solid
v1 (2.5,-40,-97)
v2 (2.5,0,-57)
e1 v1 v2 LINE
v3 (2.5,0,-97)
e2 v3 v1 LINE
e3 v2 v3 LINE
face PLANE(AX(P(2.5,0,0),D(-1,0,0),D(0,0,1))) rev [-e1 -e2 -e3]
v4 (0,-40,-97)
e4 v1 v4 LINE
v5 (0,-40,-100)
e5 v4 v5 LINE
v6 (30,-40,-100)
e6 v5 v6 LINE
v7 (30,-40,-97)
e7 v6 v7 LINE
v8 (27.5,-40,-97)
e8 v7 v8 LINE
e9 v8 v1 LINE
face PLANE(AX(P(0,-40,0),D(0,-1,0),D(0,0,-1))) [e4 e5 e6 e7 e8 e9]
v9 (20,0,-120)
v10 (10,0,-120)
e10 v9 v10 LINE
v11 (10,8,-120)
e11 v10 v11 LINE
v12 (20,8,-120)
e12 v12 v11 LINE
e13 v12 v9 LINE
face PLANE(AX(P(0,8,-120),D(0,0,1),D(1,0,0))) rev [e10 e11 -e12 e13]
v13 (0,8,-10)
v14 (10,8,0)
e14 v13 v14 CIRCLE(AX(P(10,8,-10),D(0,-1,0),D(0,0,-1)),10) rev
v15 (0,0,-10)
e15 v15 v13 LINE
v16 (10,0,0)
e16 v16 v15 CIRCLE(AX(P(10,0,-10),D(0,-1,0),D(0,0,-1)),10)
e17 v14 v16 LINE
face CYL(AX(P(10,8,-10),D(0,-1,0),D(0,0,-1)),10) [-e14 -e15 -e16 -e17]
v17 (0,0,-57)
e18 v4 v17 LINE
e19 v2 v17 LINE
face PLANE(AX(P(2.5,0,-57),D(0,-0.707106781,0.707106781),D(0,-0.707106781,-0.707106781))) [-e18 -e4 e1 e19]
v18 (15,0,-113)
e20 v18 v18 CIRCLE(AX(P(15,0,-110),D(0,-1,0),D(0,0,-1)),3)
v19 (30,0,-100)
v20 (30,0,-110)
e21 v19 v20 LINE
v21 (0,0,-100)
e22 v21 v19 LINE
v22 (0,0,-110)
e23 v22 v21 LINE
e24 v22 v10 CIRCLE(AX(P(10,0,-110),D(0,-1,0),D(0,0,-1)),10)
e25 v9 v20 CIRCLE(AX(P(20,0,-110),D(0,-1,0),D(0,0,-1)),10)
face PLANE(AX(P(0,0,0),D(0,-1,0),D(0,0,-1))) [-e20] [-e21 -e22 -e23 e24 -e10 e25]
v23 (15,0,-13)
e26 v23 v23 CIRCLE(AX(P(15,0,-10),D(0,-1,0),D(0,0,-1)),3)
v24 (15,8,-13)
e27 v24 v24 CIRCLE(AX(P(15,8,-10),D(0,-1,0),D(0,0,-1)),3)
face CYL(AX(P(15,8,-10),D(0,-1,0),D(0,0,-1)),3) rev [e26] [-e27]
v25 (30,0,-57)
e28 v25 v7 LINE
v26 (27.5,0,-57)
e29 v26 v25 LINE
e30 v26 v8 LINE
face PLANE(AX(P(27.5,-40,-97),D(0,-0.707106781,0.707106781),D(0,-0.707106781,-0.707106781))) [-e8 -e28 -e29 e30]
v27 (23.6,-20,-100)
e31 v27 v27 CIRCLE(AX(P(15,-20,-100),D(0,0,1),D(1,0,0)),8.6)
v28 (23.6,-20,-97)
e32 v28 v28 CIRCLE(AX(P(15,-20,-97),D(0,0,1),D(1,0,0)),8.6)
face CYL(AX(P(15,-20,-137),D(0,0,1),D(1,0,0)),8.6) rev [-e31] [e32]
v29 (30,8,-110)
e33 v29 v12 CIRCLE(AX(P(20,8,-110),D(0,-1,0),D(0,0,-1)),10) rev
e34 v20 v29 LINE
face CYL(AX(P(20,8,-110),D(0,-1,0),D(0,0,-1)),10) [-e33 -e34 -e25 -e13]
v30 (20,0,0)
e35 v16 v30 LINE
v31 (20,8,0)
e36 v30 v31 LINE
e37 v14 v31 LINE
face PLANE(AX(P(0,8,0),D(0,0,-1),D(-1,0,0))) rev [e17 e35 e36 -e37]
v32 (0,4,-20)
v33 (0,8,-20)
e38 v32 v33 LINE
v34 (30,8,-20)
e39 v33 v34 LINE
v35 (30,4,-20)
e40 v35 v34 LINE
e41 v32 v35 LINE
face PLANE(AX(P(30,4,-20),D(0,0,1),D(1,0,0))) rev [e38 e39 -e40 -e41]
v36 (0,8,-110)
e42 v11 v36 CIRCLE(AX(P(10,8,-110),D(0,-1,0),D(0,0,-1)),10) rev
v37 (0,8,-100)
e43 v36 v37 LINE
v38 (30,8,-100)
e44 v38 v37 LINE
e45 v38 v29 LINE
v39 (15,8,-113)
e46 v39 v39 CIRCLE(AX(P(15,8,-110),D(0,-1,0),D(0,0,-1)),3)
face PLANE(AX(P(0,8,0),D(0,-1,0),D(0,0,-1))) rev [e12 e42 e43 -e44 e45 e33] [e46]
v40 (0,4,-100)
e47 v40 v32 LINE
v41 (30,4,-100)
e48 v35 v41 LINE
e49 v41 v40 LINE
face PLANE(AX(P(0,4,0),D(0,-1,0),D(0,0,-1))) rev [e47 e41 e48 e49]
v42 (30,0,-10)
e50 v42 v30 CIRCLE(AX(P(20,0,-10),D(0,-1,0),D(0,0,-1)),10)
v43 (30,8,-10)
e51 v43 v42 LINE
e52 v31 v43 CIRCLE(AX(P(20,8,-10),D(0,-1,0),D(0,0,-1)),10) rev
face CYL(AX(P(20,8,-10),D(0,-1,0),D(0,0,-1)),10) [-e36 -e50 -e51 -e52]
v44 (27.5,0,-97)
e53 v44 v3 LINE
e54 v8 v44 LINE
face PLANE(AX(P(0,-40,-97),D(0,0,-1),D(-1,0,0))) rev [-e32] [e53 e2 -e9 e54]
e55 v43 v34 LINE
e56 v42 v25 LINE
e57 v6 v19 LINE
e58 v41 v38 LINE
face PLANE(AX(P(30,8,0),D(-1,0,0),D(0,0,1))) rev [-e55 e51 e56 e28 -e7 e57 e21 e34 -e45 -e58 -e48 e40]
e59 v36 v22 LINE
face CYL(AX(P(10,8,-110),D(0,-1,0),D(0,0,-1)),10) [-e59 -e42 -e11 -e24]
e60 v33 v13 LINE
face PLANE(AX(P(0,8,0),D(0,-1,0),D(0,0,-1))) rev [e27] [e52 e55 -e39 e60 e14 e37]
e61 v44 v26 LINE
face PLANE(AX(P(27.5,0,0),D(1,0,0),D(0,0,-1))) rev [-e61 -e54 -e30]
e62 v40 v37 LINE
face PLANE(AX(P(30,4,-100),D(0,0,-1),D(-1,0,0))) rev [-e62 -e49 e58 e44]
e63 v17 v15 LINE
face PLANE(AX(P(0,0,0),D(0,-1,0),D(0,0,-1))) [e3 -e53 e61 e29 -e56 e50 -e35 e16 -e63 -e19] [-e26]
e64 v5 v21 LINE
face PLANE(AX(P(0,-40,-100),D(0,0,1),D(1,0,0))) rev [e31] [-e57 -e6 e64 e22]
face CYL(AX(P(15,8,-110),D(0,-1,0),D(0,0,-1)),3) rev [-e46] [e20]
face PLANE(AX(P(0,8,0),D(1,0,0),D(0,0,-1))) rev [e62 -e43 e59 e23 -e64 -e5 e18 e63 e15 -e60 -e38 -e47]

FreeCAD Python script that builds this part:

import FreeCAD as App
import Part
import Sketcher

V = App.Vector
Q = App.Units.Quantity


def edges_at(feature, points):
    """Names of the edges that pass closest to the given points."""
    edges = feature.Shape.Edges
    near = lambda p: min(range(len(edges)), key=lambda i: edges[i].distToShape(Part.Vertex(*p))[0])
    return sorted({f"Edge{near(p) + 1}" for p in points})


def add_polygon(sketch, points):
    """Adds a closed chain of lines whose ends are joined by coincident constraints."""
    first, n = sketch.GeometryCount, len(points)
    for a, b in zip(points, points[1:] + points[:1]):
        sketch.addGeometry(Part.LineSegment(App.Vector(*a, 0), App.Vector(*b, 0)), False)
    for i in range(n):
        sketch.addConstraint(Sketcher.Constraint("Coincident", first + i, 2, first + (i + 1) % n, 1))

doc = App.newDocument("Part")
body = doc.addObject("PartDesign::Body", "Body")

sketch1 = doc.addObject("Sketcher::SketchObject", "Sketch")
body.addObject(sketch1)
sketch1.AttachmentSupport = (doc.XZ_Plane, [""])
sketch1.MapMode = "FlatFace"
add_polygon(sketch1, [(0, -120), (0, 0), (30, 0), (30, -120)])
sketch1.addConstraint([
    Sketcher.Constraint("Vertical", 0),
    Sketcher.Constraint("Horizontal", 1),
    Sketcher.Constraint("Vertical", 2),
    Sketcher.Constraint("Horizontal", 3),
    Sketcher.Constraint("Coincident", 0, 2, -1, 1),
    Sketcher.Constraint("DistanceX", 1, 1, 1, 2, Q("30 mm")),
    Sketcher.Constraint("DistanceY", 0, 1, 0, 2, Q("120 mm")),
])
pad1 = doc.addObject("PartDesign::Pad", "Pad")
body.addObject(pad1)
pad1.Profile = sketch1
pad1.Length = 8
pad1.Reversed = True

sketch2 = doc.addObject("Sketcher::SketchObject", "Sketch001")
body.addObject(sketch2)
sketch2.AttachmentSupport = (doc.XZ_Plane, [""])
sketch2.MapMode = "FlatFace"
sketch2.AttachmentOffset = App.Placement(V(0, 0, -8), App.Rotation())
add_polygon(sketch2, [(0, -100), (0, -20), (30, -20), (30, -100)])
sketch2.addConstraint([
    Sketcher.Constraint("Vertical", 0),
    Sketcher.Constraint("Horizontal", 1),
    Sketcher.Constraint("Vertical", 2),
    Sketcher.Constraint("Horizontal", 3),
    Sketcher.Constraint("PointOnObject", 0, 2, -2),
    Sketcher.Constraint("DistanceX", 1, 1, 1, 2, Q("30 mm")),
    Sketcher.Constraint("DistanceY", 0, 1, 0, 2, Q("80 mm")),
    Sketcher.Constraint("DistanceY", 0, 2, -1, 1, Q("20 mm")),
])
pocket1 = doc.addObject("PartDesign::Pocket", "Pocket")
body.addObject(pocket1)
pocket1.Profile = sketch2
pocket1.Length = 4
pocket1.Reversed = True

sketch3 = doc.addObject("Sketcher::SketchObject", "Sketch002")
body.addObject(sketch3)
sketch3.AttachmentSupport = (doc.XZ_Plane, [""])
sketch3.MapMode = "FlatFace"
add_polygon(sketch3, [(0, -97), (0, -100), (30, -100), (30, -97)])
sketch3.addConstraint([
    Sketcher.Constraint("Vertical", 0),
    Sketcher.Constraint("Horizontal", 1),
    Sketcher.Constraint("Vertical", 2),
    Sketcher.Constraint("Horizontal", 3),
    Sketcher.Constraint("PointOnObject", 0, 2, -2),
    Sketcher.Constraint("DistanceX", 1, 1, 1, 2, Q("30 mm")),
    Sketcher.Constraint("DistanceY", 0, 2, 0, 1, Q("3 mm")),
    Sketcher.Constraint("DistanceY", 0, 2, -1, 1, Q("100 mm")),
])
pad2 = doc.addObject("PartDesign::Pad", "Pad001")
body.addObject(pad2)
pad2.Profile = sketch3
pad2.Length = 40

sketch4 = doc.addObject("Sketcher::SketchObject", "Sketch003")
body.addObject(sketch4)
sketch4.AttachmentSupport = (doc.XY_Plane, [""])
sketch4.MapMode = "FlatFace"
sketch4.AttachmentOffset = App.Placement(V(0, 0, -97), App.Rotation())
sketch4.addGeometry(Part.Circle(V(15, -20, 0), V(0, 0, 1), 8.6), False)
sketch4.addConstraint([
    Sketcher.Constraint("Diameter", 0, Q("17.2 mm")),
    Sketcher.Constraint("DistanceX", -1, 1, 0, 3, Q("15 mm")),
    Sketcher.Constraint("DistanceY", 0, 3, -1, 1, Q("20 mm")),
])
pocket2 = doc.addObject("PartDesign::Pocket", "Pocket001")
body.addObject(pocket2)
pocket2.Profile = sketch4
pocket2.Length = 40

sketch5 = doc.addObject("Sketcher::SketchObject", "Sketch004")
body.addObject(sketch5)
sketch5.AttachmentSupport = (doc.YZ_Plane, [""])
sketch5.MapMode = "FlatFace"
sketch5.AttachmentOffset = App.Placement(V(0, 0, 30), App.Rotation())
add_polygon(sketch5, [(0, -57), (-40, -97), (0, -97)])
sketch5.addConstraint([
    Sketcher.Constraint("Horizontal", 1),
    Sketcher.Constraint("Vertical", 2),
    Sketcher.Constraint("PointOnObject", 1, 2, -2),
    Sketcher.Constraint("Equal", 1, 2),
    Sketcher.Constraint("DistanceX", 1, 1, 1, 2, Q("40 mm")),
    Sketcher.Constraint("DistanceY", 0, 2, -1, 1, Q("97 mm")),
])
pad3 = doc.addObject("PartDesign::Pad", "Pad002")
body.addObject(pad3)
pad3.Profile = sketch5
pad3.Length = 2.5
pad3.Reversed = True

sketch6 = doc.addObject("Sketcher::SketchObject", "Sketch005")
body.addObject(sketch6)
sketch6.AttachmentSupport = (doc.YZ_Plane, [""])
sketch6.MapMode = "FlatFace"
add_polygon(sketch6, [(-40, -97), (0, -57), (0, -97)])
sketch6.addConstraint([
    Sketcher.Constraint("Vertical", 1),
    Sketcher.Constraint("Horizontal", 2),
    Sketcher.Constraint("PointOnObject", 0, 2, -2),
    Sketcher.Constraint("Equal", 2, 1),
    Sketcher.Constraint("DistanceX", 2, 2, 2, 1, Q("40 mm")),
    Sketcher.Constraint("DistanceY", 0, 2, -1, 1, Q("57 mm")),
])
pad4 = doc.addObject("PartDesign::Pad", "Pad003")
body.addObject(pad4)
pad4.Profile = sketch6
pad4.Length = 2.5

sketch7 = doc.addObject("Sketcher::SketchObject", "Sketch006")
body.addObject(sketch7)
sketch7.AttachmentSupport = (doc.XZ_Plane, [""])
sketch7.MapMode = "FlatFace"
sketch7.addGeometry([
    Part.Circle(V(15, -10, 0), V(0, 0, 1), 3),
    Part.Circle(V(15, -110, 0), V(0, 0, 1), 3),
], False)
sketch7.addConstraint([
    Sketcher.Constraint("Equal", 0, 1),
    Sketcher.Constraint("Vertical", 0, 3, 1, 3),
    Sketcher.Constraint("Diameter", 0, Q("6 mm")),
    Sketcher.Constraint("DistanceX", -1, 1, 0, 3, Q("15 mm")),
    Sketcher.Constraint("DistanceY", 0, 3, -1, 1, Q("10 mm")),
    Sketcher.Constraint("DistanceY", 1, 3, -1, 1, Q("110 mm")),
])
pocket3 = doc.addObject("PartDesign::Pocket", "Pocket002")
body.addObject(pocket3)
pocket3.Profile = sketch7
pocket3.Type = "ThroughAll"
doc.recompute()

fillet = doc.addObject("PartDesign::Fillet", "Fillet")
body.addObject(fillet)
fillet.Base = (pocket3, edges_at(pocket3, [
    (0, 4, -120),
    (30, 4, -120),
    (30, 4, 0),
    (0, 4, 0),
]))
fillet.Radius = 10

doc.recompute()
